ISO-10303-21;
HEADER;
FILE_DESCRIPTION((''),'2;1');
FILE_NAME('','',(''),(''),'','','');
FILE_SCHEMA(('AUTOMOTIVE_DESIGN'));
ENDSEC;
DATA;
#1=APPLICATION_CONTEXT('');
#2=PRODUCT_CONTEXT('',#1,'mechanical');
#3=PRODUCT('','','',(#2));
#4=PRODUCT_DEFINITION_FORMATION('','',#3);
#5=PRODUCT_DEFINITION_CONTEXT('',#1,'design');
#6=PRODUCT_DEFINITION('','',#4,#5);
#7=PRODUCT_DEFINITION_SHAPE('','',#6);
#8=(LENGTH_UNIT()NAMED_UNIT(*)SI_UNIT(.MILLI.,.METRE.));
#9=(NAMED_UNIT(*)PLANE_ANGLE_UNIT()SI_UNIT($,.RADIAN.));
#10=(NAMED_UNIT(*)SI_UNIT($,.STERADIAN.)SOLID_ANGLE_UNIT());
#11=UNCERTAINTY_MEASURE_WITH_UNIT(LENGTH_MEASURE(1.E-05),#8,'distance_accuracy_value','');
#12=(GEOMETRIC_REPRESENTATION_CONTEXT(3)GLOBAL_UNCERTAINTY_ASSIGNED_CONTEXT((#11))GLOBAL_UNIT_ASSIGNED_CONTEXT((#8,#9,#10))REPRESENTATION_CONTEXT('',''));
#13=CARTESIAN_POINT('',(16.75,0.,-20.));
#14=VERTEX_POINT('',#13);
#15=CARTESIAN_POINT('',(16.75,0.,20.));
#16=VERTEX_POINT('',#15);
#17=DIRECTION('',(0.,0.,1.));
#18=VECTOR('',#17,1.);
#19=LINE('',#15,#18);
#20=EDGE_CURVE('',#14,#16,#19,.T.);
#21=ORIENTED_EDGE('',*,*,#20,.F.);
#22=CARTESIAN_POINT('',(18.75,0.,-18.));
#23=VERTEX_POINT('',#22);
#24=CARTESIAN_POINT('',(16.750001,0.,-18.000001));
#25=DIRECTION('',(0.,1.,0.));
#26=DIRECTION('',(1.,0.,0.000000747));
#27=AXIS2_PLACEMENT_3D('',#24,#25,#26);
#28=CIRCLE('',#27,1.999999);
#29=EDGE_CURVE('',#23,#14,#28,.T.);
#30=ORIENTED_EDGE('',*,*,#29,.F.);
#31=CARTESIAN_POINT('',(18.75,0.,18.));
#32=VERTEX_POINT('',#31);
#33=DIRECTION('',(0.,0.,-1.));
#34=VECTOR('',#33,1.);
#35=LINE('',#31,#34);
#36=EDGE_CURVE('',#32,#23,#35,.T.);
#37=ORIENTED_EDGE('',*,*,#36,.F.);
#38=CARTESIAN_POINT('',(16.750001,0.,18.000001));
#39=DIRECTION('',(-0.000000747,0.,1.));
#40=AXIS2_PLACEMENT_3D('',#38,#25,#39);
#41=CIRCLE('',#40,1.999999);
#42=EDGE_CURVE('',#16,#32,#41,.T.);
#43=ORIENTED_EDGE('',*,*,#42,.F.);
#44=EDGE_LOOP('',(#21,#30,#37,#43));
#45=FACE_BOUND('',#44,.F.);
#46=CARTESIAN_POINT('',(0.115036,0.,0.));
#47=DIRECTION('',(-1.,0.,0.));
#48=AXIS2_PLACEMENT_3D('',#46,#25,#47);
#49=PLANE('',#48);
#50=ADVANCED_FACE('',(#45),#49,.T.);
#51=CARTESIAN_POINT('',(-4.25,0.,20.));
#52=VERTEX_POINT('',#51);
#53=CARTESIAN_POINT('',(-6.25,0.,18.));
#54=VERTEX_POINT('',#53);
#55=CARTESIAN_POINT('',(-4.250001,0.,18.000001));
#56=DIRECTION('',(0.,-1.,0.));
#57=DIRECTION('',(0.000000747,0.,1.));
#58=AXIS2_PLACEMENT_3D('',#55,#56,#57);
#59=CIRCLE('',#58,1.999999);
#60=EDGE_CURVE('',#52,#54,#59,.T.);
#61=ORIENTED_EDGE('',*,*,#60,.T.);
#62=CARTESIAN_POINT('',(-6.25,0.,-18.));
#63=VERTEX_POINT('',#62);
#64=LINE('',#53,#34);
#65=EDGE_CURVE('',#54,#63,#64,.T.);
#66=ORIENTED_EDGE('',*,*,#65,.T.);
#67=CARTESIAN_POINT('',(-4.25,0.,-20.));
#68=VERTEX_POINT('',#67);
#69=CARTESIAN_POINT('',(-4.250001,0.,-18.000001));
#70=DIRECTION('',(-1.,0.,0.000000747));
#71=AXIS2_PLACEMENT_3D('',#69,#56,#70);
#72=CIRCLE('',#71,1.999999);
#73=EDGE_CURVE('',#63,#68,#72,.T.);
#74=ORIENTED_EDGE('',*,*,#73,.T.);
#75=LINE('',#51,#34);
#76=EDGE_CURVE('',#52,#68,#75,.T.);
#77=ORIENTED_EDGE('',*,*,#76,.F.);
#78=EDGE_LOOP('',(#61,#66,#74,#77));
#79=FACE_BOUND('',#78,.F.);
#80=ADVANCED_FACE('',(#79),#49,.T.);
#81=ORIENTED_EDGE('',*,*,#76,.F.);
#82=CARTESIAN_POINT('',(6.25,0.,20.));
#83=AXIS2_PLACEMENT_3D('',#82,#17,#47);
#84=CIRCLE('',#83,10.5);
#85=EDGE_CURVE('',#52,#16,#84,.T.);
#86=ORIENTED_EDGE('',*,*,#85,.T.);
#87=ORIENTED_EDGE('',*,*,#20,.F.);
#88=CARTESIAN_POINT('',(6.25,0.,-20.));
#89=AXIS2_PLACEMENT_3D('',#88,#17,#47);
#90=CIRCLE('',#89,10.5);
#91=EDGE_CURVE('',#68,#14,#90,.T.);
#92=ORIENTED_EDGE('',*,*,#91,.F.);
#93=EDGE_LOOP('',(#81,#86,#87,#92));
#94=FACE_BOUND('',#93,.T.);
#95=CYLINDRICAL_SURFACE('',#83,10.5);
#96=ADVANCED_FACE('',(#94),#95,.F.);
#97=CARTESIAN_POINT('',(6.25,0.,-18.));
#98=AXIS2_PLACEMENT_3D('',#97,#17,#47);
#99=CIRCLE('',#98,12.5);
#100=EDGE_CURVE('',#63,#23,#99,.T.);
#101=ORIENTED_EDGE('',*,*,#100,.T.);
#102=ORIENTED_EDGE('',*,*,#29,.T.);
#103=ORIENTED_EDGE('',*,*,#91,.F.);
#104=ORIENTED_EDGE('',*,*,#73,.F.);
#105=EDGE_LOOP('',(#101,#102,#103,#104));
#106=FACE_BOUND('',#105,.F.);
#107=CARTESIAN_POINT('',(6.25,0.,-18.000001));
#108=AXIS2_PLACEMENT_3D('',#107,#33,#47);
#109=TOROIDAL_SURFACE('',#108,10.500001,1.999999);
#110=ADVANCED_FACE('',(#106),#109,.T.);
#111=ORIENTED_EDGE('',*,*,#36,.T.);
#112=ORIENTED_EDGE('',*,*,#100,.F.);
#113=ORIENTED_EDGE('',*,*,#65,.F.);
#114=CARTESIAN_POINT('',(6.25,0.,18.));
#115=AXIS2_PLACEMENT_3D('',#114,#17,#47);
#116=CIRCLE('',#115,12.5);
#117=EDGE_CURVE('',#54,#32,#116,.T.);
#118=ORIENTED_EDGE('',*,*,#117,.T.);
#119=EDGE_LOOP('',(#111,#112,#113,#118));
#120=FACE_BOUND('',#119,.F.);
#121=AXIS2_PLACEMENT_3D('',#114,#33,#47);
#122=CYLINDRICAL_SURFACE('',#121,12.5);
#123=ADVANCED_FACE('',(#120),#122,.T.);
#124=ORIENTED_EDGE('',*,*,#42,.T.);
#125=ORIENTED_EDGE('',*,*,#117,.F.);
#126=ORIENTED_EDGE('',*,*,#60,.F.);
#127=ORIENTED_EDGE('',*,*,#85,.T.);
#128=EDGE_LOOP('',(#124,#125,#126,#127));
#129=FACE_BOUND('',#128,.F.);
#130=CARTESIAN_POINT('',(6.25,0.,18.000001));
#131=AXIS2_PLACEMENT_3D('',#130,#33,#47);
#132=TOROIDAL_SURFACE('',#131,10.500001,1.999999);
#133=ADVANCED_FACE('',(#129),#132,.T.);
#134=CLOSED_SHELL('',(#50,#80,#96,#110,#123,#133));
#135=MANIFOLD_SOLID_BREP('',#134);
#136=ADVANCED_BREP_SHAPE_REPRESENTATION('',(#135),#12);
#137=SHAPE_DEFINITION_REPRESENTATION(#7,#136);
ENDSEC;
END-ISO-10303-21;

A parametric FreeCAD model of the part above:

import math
import FreeCAD as App
import Part
import Sketcher

V = App.Vector

doc = App.newDocument("Part")
params = doc.addObject("Spreadsheet::Sheet", "Params")
for row, (alias, value) in enumerate([
    ("sketch1_radius", "1.999999 mm"),
    ("sketch1_height", "36 mm"),
    ("sketch1_width", "10.5 mm"),
    ("revolution_angle", "180 deg"),
    ("sketch2_diameter", "21 mm"),
    ("pocket1_length", "40 mm"),
], start=1):
    params.set(f"A{row}", alias)
    params.set(f"B{row}", "=" + value)
    params.setAlias(f"B{row}", alias)

body = doc.addObject("PartDesign::Body", "Body")

# Sketch on XZ plane
sketch1 = body.newObject("Sketcher::SketchObject", "Sketch")
sketch1.AttachmentSupport = (doc.getObject("XZ_Plane"), [""])
sketch1.MapMode = "FlatFace"
sketch1.addGeometry(Part.LineSegment(V(6.2, 20, 0), V(-4.2, 20, 0)), False)
sketch1.addGeometry(Part.ArcOfCircle(Part.Circle(V(-4.3, 18, 0), V(0, 0, 1), 2), math.radians(90), math.radians(180)), False)
sketch1.addGeometry(Part.LineSegment(V(-6.2, 18, 0), V(-6.2, -18, 0)), False)
sketch1.addGeometry(Part.ArcOfCircle(Part.Circle(V(-4.3, -18, 0), V(0, 0, 1), 2), math.radians(180), math.radians(270)), False)
sketch1.addGeometry(Part.LineSegment(V(-4.2, -20, 0), V(6.2, -20, 0)), False)
sketch1.addGeometry(Part.LineSegment(V(6.2, -20, 0), V(6.2, 20, 0)), False)
sketch1.addGeometry(Part.LineSegment(V(6.2, 20, 0), V(6.2, -20, 0)), True)  # axis
sketch1.addConstraint(Sketcher.Constraint("Tangent", 0, 2, 1, 1))
sketch1.addConstraint(Sketcher.Constraint("Tangent", 1, 2, 2, 1))
sketch1.addConstraint(Sketcher.Constraint("Tangent", 2, 2, 3, 1))
sketch1.addConstraint(Sketcher.Constraint("Tangent", 3, 2, 4, 1))
sketch1.addConstraint(Sketcher.Constraint("Coincident", 4, 2, 5, 1))
sketch1.addConstraint(Sketcher.Constraint("Coincident", 5, 2, 0, 1))
sketch1.addConstraint(Sketcher.Constraint("Horizontal", 0))
sketch1.addConstraint(Sketcher.Constraint("Vertical", 2))
sketch1.addConstraint(Sketcher.Constraint("Horizontal", 4))
sketch1.addConstraint(Sketcher.Constraint("Vertical", 5))
sketch1.addConstraint(Sketcher.Constraint("Vertical", 6))
sketch1.addConstraint(Sketcher.Constraint("Coincident", 6, 1, 5, 2))
sketch1.addConstraint(Sketcher.Constraint("Equal", 1, 3))
sketch1.addConstraint(Sketcher.Constraint("Horizontal", 3, 2, 6, 2))
sketch1.addConstraint(Sketcher.Constraint("Radius", 1, 1.999999))
sketch1.addConstraint(Sketcher.Constraint("DistanceY", 2, 2, 2, 1, 36.0))
sketch1.addConstraint(Sketcher.Constraint("DistanceX", 0, 2, 0, 1, 10.5))
sketch1.addConstraint(Sketcher.Constraint("DistanceY", -1, 1, 1, 3, 18.000001))
sketch1.addConstraint(Sketcher.Constraint("DistanceX", 1, 3, -1, 1, 4.250001))
sketch1.setExpression("Constraints[14]", "Params.sketch1_radius")
sketch1.setExpression("Constraints[15]", "Params.sketch1_height")
sketch1.setExpression("Constraints[16]", "Params.sketch1_width")
revolution = body.newObject("PartDesign::Revolution", "Revolution")
revolution.Profile = sketch1
revolution.ReferenceAxis = (sketch1, ["Axis0"])
revolution.setExpression("Angle", "Params.revolution_angle")

# Sketch on XY plane
sketch2 = body.newObject("Sketcher::SketchObject", "Sketch001")
sketch2.AttachmentSupport = (doc.getObject("XY_Plane"), [""])
sketch2.MapMode = "FlatFace"
sketch2.AttachmentOffset = App.Placement(V(0, 0, 20), App.Rotation())
sketch2.addGeometry(Part.Circle(V(6, 0, 0), V(0, 0, 1), 10), False)
sketch2.addConstraint(Sketcher.Constraint("PointOnObject", 0, 3, -1))
sketch2.addConstraint(Sketcher.Constraint("Diameter", 0, 21.0))
sketch2.addConstraint(Sketcher.Constraint("DistanceX", -1, 1, 0, 3, 6.25))
sketch2.setExpression("Constraints[1]", "Params.sketch2_diameter")
pocket1 = body.newObject("PartDesign::Pocket", "Pocket")
pocket1.Profile = sketch2
pocket1.setExpression("Length", "Params.pocket1_length")
body2 = doc.addObject("PartDesign::Body", "Body001")
doc.recompute()

mirroring = doc.addObject("Part::Mirroring", "Mirroring")
mirroring.Source = body
mirroring.Base = V(0, 0, 0)
mirroring.Normal = V(0, -1, 0)
body2.BaseFeature = mirroring
doc.recompute()
body.Visibility = False
mirroring.Visibility = False

doc.recompute()
